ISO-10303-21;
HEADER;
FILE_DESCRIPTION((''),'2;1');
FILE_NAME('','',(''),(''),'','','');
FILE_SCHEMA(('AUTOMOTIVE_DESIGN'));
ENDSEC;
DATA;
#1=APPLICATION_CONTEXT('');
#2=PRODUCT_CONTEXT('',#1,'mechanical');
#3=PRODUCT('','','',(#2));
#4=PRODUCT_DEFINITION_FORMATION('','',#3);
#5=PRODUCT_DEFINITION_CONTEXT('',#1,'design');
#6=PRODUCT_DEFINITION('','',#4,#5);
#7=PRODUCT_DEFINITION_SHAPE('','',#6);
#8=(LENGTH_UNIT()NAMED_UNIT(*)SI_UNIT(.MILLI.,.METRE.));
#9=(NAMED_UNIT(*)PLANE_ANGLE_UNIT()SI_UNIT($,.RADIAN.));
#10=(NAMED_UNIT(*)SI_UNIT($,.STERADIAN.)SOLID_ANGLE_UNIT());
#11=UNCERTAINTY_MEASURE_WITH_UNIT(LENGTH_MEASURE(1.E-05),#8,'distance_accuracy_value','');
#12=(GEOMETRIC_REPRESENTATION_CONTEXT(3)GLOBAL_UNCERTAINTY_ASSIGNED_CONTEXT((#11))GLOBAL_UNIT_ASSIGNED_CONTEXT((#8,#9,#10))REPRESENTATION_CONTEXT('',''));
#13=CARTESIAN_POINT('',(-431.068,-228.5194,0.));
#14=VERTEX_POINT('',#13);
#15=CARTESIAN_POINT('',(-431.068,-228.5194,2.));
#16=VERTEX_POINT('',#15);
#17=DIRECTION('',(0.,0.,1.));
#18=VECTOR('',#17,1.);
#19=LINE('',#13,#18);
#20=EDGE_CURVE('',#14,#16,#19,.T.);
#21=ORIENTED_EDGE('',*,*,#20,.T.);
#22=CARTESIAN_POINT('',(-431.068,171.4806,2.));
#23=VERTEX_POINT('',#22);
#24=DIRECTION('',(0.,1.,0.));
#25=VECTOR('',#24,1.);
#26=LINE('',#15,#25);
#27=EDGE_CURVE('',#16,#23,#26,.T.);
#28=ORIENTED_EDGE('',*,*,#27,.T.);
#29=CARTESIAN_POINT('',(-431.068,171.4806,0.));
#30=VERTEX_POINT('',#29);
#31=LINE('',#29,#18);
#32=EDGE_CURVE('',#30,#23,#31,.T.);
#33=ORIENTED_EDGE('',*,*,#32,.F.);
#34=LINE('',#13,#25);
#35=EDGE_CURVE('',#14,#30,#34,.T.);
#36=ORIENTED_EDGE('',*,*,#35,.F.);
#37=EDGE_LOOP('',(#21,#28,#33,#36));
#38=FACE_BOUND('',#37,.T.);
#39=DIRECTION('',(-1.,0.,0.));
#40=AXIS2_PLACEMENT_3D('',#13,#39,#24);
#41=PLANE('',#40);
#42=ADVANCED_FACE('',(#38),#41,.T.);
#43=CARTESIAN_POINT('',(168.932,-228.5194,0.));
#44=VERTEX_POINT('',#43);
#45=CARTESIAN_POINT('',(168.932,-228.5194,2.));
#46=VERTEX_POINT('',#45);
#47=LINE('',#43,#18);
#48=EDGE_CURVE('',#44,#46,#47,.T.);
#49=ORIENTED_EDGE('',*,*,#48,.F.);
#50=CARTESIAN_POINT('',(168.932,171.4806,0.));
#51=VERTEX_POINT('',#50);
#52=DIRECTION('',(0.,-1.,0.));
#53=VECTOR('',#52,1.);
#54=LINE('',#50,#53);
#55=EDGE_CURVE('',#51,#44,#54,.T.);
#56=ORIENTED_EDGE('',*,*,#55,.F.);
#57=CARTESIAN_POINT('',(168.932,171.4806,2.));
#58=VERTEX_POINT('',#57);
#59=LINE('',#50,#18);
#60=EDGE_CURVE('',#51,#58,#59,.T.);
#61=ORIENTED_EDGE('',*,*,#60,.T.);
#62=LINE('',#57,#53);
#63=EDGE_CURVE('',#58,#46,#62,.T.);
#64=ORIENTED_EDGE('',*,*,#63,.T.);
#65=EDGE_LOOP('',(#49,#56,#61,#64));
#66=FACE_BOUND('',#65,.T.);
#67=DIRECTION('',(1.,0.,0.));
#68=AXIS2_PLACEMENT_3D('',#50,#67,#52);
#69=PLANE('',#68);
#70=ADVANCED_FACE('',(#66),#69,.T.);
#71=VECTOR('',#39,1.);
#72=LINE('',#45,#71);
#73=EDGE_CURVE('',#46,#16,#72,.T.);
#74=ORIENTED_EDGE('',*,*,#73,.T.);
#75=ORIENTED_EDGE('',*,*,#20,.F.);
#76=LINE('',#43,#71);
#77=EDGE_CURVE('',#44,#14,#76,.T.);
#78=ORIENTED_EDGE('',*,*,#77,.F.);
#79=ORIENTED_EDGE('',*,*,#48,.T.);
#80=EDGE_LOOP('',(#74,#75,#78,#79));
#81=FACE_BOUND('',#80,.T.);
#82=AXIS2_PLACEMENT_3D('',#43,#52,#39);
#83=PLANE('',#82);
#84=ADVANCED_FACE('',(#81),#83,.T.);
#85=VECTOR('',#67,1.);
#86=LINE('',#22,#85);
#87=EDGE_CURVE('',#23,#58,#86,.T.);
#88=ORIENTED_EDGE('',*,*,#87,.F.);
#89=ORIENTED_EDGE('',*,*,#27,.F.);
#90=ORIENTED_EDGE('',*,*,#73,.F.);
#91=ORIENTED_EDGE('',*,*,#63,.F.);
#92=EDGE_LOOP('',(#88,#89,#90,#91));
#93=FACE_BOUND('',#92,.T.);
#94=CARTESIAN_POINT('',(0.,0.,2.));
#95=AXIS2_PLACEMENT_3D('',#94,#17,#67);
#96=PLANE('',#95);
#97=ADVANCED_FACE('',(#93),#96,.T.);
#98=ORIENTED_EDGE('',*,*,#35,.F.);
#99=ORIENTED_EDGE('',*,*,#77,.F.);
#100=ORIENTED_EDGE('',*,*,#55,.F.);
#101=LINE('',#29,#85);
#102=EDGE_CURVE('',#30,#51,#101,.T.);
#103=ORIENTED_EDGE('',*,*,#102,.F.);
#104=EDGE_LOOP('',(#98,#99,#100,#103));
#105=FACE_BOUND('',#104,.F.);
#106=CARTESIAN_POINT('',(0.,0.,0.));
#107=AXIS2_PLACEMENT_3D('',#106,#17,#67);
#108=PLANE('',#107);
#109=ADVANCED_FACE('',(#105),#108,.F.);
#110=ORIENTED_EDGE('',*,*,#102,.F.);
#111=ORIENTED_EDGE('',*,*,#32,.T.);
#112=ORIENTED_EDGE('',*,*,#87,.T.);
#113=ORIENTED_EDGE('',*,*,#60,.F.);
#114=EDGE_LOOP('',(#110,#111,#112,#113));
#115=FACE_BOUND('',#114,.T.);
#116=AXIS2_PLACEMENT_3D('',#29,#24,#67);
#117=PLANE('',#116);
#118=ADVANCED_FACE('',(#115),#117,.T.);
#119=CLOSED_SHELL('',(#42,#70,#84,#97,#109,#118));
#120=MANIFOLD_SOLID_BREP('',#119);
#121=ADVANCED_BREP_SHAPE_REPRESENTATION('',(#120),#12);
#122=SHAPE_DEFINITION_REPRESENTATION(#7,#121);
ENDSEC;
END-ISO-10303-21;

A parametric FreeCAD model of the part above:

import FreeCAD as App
import Part
import Sketcher
Q = App.Units.Quantity


def add_polygon(sketch, points):
    """Adds a closed chain of lines whose ends are joined by coincident constraints."""
    first, n = sketch.GeometryCount, len(points)
    for a, b in zip(points, points[1:] + points[:1]):
        sketch.addGeometry(Part.LineSegment(App.Vector(*a, 0), App.Vector(*b, 0)), False)
    for i in range(n):
        sketch.addConstraint(Sketcher.Constraint("Coincident", first + i, 2, first + (i + 1) % n, 1))

doc = App.newDocument("Part")
params = doc.addObject("Spreadsheet::Sheet", "Params")
for row, (alias, value) in enumerate([
    ("sketch1_width", "600 mm"),
    ("sketch1_height", "400 mm"),
    ("pad1_length", "2 mm"),
], start=1):
    params.set(f"A{row}", alias)
    params.set(f"B{row}", "=" + value)
    params.setAlias(f"B{row}", alias)

body = doc.addObject("PartDesign::Body", "Body")

sketch1 = doc.addObject("Sketcher::SketchObject", "Sketch")
body.addObject(sketch1)
sketch1.AttachmentSupport = (doc.XY_Plane, [""])
sketch1.MapMode = "FlatFace"
add_polygon(sketch1, [(169, 171), (-431, 171), (-431, -229), (169, -229)])
sketch1.addConstraint([
    Sketcher.Constraint("Horizontal", 0),
    Sketcher.Constraint("Vertical", 1),
    Sketcher.Constraint("Horizontal", 2),
    Sketcher.Constraint("Vertical", 3),
    Sketcher.Constraint("DistanceX", 0, 2, 0, 1, Q("600 mm")),
    Sketcher.Constraint("DistanceY", 1, 2, 1, 1, Q("400 mm")),
    Sketcher.Constraint("DistanceX", 0, 2, -1, 1, Q("431.068 mm")),
    Sketcher.Constraint("DistanceY", -1, 1, 0, 2, Q("171.4806 mm")),
])
sketch1.setExpression("Constraints[8]", "Params.sketch1_width")
sketch1.setExpression("Constraints[9]", "Params.sketch1_height")
pad1 = doc.addObject("PartDesign::Pad", "Pad")
body.addObject(pad1)
pad1.Profile = sketch1
pad1.setExpression("Length", "Params.pad1_length")

doc.recompute()
